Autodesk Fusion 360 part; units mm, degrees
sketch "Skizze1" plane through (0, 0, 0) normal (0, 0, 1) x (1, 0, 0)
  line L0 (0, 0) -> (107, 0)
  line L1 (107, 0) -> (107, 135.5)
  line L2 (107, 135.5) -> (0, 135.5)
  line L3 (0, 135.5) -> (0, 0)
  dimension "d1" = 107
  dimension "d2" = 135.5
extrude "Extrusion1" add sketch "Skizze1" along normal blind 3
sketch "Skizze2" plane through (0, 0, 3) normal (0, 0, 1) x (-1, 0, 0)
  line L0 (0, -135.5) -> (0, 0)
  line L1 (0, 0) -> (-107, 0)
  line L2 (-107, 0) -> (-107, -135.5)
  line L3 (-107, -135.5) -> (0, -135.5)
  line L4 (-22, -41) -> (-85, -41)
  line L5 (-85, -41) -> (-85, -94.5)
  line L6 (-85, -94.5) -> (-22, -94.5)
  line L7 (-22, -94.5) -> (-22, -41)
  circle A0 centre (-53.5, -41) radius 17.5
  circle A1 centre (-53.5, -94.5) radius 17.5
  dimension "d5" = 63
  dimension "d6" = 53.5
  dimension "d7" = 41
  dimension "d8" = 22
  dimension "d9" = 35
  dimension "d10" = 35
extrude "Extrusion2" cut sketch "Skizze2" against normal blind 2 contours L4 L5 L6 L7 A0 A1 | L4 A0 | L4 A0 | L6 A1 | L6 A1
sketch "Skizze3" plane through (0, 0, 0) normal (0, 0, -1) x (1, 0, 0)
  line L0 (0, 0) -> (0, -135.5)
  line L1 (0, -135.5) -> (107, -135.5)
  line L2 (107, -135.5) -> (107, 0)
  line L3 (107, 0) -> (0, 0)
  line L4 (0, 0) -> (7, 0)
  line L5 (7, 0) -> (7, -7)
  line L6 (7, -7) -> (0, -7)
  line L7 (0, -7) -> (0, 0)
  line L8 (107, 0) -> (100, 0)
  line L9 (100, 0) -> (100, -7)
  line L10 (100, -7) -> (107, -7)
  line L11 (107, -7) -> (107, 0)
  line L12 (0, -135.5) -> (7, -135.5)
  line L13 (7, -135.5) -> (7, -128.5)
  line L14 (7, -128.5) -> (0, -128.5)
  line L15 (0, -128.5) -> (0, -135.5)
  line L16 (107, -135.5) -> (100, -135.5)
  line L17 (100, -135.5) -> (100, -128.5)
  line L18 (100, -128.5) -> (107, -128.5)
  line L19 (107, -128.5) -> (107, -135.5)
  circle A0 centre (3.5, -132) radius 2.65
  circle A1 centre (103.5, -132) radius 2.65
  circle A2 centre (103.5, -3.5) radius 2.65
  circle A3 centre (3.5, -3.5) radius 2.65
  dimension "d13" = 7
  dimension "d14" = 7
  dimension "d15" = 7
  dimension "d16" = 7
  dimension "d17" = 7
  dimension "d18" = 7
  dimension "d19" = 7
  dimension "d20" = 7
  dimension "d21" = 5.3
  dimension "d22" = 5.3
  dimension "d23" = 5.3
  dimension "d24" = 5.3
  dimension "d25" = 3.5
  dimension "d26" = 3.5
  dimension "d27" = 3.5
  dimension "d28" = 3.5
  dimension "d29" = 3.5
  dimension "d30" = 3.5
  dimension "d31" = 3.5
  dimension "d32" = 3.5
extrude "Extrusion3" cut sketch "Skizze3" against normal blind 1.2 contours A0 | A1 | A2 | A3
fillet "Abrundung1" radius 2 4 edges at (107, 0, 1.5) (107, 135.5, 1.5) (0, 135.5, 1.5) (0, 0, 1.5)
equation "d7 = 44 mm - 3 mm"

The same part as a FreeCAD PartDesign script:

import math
import FreeCAD as App
import Part
import Sketcher

V = App.Vector
Q = App.Units.Quantity


def edges_at(feature, points):
    """Names of the edges that pass closest to the given points."""
    edges = feature.Shape.Edges
    near = lambda p: min(range(len(edges)), key=lambda i: edges[i].distToShape(Part.Vertex(*p))[0])
    return sorted({f"Edge{near(p) + 1}" for p in points})


def add_polygon(sketch, points):
    """Adds a closed chain of lines whose ends are joined by coincident constraints."""
    first, n = sketch.GeometryCount, len(points)
    for a, b in zip(points, points[1:] + points[:1]):
        sketch.addGeometry(Part.LineSegment(App.Vector(*a, 0), App.Vector(*b, 0)), False)
    for i in range(n):
        sketch.addConstraint(Sketcher.Constraint("Coincident", first + i, 2, first + (i + 1) % n, 1))

doc = App.newDocument("Part")
body = doc.addObject("PartDesign::Body", "Body")

# Sketch on XY plane
sketch1 = body.newObject("Sketcher::SketchObject", "Sketch")
sketch1.AttachmentSupport = (doc.getObject("XY_Plane"), [""])
sketch1.MapMode = "FlatFace"
add_polygon(sketch1, [(0, 136), (0, 0), (107, 0), (107, 136)])  # lines 0-3
sketch1.addConstraint([
    Sketcher.Constraint("Vertical", 0),
    Sketcher.Constraint("Horizontal", 1),
    Sketcher.Constraint("Vertical", 2),
    Sketcher.Constraint("Horizontal", 3),
    Sketcher.Constraint("Coincident", 0, 2, -1, 1),
    Sketcher.Constraint("DistanceX", 1, 1, 1, 2, Q("107 mm")),
    Sketcher.Constraint("DistanceY", 0, 2, 0, 1, Q("135.5 mm")),
])
pad1 = body.newObject("PartDesign::Pad", "Pad")
pad1.Profile = sketch1
pad1.Length = 3

# Sketch on XY plane
sketch2 = body.newObject("Sketcher::SketchObject", "Sketch001")
sketch2.AttachmentSupport = (doc.getObject("XY_Plane"), [""])
sketch2.MapMode = "FlatFace"
sketch2.AttachmentOffset = App.Placement(V(0, 0, 3), App.Rotation())
sketch2.addGeometry([
    Part.LineSegment(V(22, 94, 0), V(22, 41, 0)),  # 0
    Part.LineSegment(V(22, 41, 0), V(36, 41, 0)),  # 1
    Part.ArcOfCircle(Part.Circle(V(54, 41, 0), V(0, 0, 1), 18), math.radians(180), math.radians(360)),  # 2
    Part.LineSegment(V(71, 41, 0), V(85, 41, 0)),  # 3
    Part.LineSegment(V(85, 41, 0), V(85, 94, 0)),  # 4
    Part.LineSegment(V(85, 94, 0), V(71, 94, 0)),  # 5
    Part.ArcOfCircle(Part.Circle(V(54, 94, 0), V(0, 0, 1), 18), math.radians(0), math.radians(180)),  # 6
    Part.LineSegment(V(36, 94, 0), V(22, 94, 0)),  # 7
], False)
sketch2.addConstraint([
    Sketcher.Constraint("Coincident", 0, 2, 1, 1),
    Sketcher.Constraint("Coincident", 1, 2, 2, 1),
    Sketcher.Constraint("Coincident", 2, 2, 3, 1),
    Sketcher.Constraint("Coincident", 3, 2, 4, 1),
    Sketcher.Constraint("Coincident", 4, 2, 5, 1),
    Sketcher.Constraint("Coincident", 5, 2, 6, 1),
    Sketcher.Constraint("Coincident", 6, 2, 7, 1),
    Sketcher.Constraint("Coincident", 7, 2, 0, 1),
    Sketcher.Constraint("Vertical", 0),
    Sketcher.Constraint("Horizontal", 1),
    Sketcher.Constraint("Horizontal", 3),
    Sketcher.Constraint("Vertical", 4),
    Sketcher.Constraint("Horizontal", 5),
    Sketcher.Constraint("Horizontal", 7),
    Sketcher.Constraint("Equal", 2, 6),
    Sketcher.Constraint("Horizontal", 2, 3, 0, 2),
    Sketcher.Constraint("Horizontal", 1, 2, 2, 2),
    Sketcher.Constraint("Horizontal", 6, 3, 4, 2),
    Sketcher.Constraint("Horizontal", 5, 2, 6, 2),
    Sketcher.Constraint("Vertical", 2, 3, 6, 3),
    Sketcher.Constraint("Equal", 1, 3),
    Sketcher.Constraint("Radius", 2, Q("17.5 mm")),
    Sketcher.Constraint("DistanceY", 0, 2, 0, 1, Q("53.5 mm")),
    Sketcher.Constraint("DistanceY", -1, 1, 2, 3, Q("41 mm")),
    Sketcher.Constraint("DistanceX", -1, 1, 0, 2, Q("22 mm")),
    Sketcher.Constraint("DistanceX", 0, 2, 3, 2, Q("63 mm")),
])
pocket1 = body.newObject("PartDesign::Pocket", "Pocket")
pocket1.Profile = sketch2
pocket1.Length = 2

# Sketch on XY plane
sketch3 = body.newObject("Sketcher::SketchObject", "Sketch002")
sketch3.AttachmentSupport = (doc.getObject("XY_Plane"), [""])
sketch3.MapMode = "FlatFace"
sketch3.addGeometry([
    Part.Circle(V(3.5, 132, 0), V(0, 0, 1), 2.6),
    Part.Circle(V(103.5, 132, 0), V(0, 0, 1), 2.6),
    Part.Circle(V(103.5, 3.5, 0), V(0, 0, 1), 2.6),
    Part.Circle(V(3.5, 3.5, 0), V(0, 0, 1), 2.6),
], False)
sketch3.addConstraint([
    Sketcher.Constraint("Equal", 0, 1),
    Sketcher.Constraint("Equal", 1, 2),
    Sketcher.Constraint("Equal", 2, 3),
    Sketcher.Constraint("Horizontal", 0, 3, 1, 3),
    Sketcher.Constraint("Horizontal", 2, 3, 3, 3),
    Sketcher.Constraint("Vertical", 1, 3, 2, 3),
    Sketcher.Constraint("Vertical", 0, 3, 3, 3),
    Sketcher.Constraint("Diameter", 0, Q("5.3 mm")),
    Sketcher.Constraint("DistanceX", -1, 1, 0, 3, Q("3.5 mm")),
    Sketcher.Constraint("DistanceY", -1, 1, 2, 3, Q("3.5 mm")),
    Sketcher.Constraint("DistanceY", -1, 1, 0, 3, Q("132 mm")),
    Sketcher.Constraint("DistanceX", 0, 3, 1, 3, Q("100 mm")),
])
pocket2 = body.newObject("PartDesign::Pocket", "Pocket001")
pocket2.Profile = sketch3
pocket2.Length = 1.2
pocket2.Reversed = True
doc.recompute()

fillet = body.newObject("PartDesign::Fillet", "Fillet")
fillet.Base = (pocket2, edges_at(pocket2, [
    (107, 0, 1.5),
    (107, 135.5, 1.5),
    (0, 135.5, 1.5),
    (0, 0, 1.5),
]))
fillet.Radius = 2

doc.recompute()
